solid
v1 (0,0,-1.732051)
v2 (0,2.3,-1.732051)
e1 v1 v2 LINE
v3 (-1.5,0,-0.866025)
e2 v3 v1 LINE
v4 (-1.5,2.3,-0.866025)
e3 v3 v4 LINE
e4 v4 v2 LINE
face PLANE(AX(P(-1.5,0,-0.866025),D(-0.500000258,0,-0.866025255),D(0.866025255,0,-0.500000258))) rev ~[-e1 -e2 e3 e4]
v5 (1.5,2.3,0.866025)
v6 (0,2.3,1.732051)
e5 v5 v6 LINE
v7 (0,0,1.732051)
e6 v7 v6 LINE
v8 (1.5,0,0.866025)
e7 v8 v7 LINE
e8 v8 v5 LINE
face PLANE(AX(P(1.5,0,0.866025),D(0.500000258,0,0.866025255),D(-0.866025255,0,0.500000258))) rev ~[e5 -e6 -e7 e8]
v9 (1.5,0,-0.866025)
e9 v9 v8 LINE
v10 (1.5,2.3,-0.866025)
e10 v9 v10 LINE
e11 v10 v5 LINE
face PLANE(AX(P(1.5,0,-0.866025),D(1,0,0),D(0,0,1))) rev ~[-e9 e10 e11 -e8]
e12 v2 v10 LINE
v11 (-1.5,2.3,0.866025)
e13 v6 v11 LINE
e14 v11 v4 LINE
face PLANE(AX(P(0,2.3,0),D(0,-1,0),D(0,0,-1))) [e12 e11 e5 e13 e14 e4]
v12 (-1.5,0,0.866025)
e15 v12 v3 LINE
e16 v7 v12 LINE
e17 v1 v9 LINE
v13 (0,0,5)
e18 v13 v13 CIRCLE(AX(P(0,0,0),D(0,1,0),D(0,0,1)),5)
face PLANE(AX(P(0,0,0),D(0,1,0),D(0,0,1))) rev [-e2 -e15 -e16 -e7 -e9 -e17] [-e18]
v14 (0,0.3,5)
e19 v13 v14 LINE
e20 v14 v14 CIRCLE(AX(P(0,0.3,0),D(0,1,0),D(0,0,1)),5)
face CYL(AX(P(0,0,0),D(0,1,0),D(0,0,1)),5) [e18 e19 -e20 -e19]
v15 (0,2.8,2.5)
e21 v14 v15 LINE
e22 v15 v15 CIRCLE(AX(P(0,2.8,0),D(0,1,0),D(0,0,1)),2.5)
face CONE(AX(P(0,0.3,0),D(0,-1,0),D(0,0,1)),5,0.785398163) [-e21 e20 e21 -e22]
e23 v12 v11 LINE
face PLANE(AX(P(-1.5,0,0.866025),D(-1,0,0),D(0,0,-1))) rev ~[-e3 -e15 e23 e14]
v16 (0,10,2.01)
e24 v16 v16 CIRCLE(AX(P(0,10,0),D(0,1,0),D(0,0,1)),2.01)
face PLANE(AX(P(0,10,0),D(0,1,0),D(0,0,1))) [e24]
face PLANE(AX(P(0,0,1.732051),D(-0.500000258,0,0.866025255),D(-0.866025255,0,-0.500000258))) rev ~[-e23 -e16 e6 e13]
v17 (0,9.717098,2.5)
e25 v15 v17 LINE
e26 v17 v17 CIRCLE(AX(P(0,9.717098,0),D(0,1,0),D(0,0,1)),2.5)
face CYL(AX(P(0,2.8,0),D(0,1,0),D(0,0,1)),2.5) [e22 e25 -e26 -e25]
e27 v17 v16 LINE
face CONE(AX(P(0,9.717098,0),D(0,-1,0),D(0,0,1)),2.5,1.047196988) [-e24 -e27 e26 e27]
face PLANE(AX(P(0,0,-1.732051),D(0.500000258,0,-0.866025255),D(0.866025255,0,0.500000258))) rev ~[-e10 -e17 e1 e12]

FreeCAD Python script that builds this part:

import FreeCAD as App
import Part
import Sketcher
from FreeCAD import Vector
Q = App.Units.Quantity

doc = App.newDocument("Part")
params = doc.addObject("Spreadsheet::Sheet", "Params")
for row, (alias, value) in enumerate([
    ("sketch1_width", "10 mm"),
    ("sketch1_height", "5 mm"),
    ("sketch1_width2", "0.3 mm"),
    ("sketch1_height2", "2.01 mm"),
    ("revolution_angle", "360 deg"),
    ("pocket1_length", "2.3 mm"),
], start=1):
    params.set(f"A{row}", alias)
    params.set(f"B{row}", "=" + value)
    params.setAlias(f"B{row}", alias)

body = doc.addObject("PartDesign::Body", "Body")

# Sketch on YZ plane
sketch1 = doc.addObject("Sketcher::SketchObject", "Sketch")
body.addObject(sketch1)
sketch1.AttachmentSupport = (doc.YZ_Plane, [""])
sketch1.MapMode = "FlatFace"
sketch1.addGeometry([
    Part.LineSegment(Vector(0, 5, 0), Vector(0, 0, 0)),  # 0
    Part.LineSegment(Vector(0, 0, 0), Vector(10, 0, 0)),  # 1
    Part.LineSegment(Vector(10, 0, 0), Vector(10, 2.01, 0)),  # 2
    Part.LineSegment(Vector(10, 2.01, 0), Vector(9.717098, 2.5, 0)),  # 3
    Part.LineSegment(Vector(9.717098, 2.5, 0), Vector(2.8, 2.5, 0)),  # 4
    Part.LineSegment(Vector(2.8, 2.5, 0), Vector(0.3, 5, 0)),  # 5
    Part.LineSegment(Vector(0.3, 5, 0), Vector(0, 5, 0)),  # 6
], False)
sketch1.addConstraint([
    Sketcher.Constraint("Coincident", 0, 2, 1, 1),
    Sketcher.Constraint("Coincident", 1, 2, 2, 1),
    Sketcher.Constraint("Coincident", 2, 2, 3, 1),
    Sketcher.Constraint("Coincident", 3, 2, 4, 1),
    Sketcher.Constraint("Coincident", 4, 2, 5, 1),
    Sketcher.Constraint("Coincident", 5, 2, 6, 1),
    Sketcher.Constraint("Coincident", 6, 2, 0, 1),
    Sketcher.Constraint("Vertical", 0),
    Sketcher.Constraint("Horizontal", 1),
    Sketcher.Constraint("Vertical", 2),
    Sketcher.Constraint("Horizontal", 4),
    Sketcher.Constraint("Horizontal", 6),
    Sketcher.Constraint("Coincident", 0, 2, -1, 1),
    Sketcher.Constraint("DistanceX", 1, 1, 1, 2, 10.0),
    Sketcher.Constraint("DistanceY", 0, 2, 0, 1, 5.0),
    Sketcher.Constraint("Angle", 5, Q("135 deg")),
    Sketcher.Constraint("DistanceX", 6, 2, 6, 1, 0.3),
    Sketcher.Constraint("DistanceY", 2, 1, 2, 2, 2.01),
    Sketcher.Constraint("DistanceY", -1, 1, 3, 2, 2.5),
    Sketcher.Constraint("DistanceX", 4, 2, 4, 1, 6.917098),
])
sketch1.setExpression("Constraints[13]", "Params.sketch1_width")
sketch1.setExpression("Constraints[14]", "Params.sketch1_height")
sketch1.setExpression("Constraints[16]", "Params.sketch1_width2")
sketch1.setExpression("Constraints[17]", "Params.sketch1_height2")
revolution = doc.addObject("PartDesign::Revolution", "Revolution")
body.addObject(revolution)
revolution.Profile = sketch1
revolution.ReferenceAxis = (sketch1, ["H_Axis"])
revolution.setExpression("Angle", "Params.revolution_angle")

# Sketch on XZ plane
sketch2 = doc.addObject("Sketcher::SketchObject", "Sketch001")
body.addObject(sketch2)
sketch2.AttachmentSupport = (doc.XZ_Plane, [""])
sketch2.MapMode = "FlatFace"
sketch2.addGeometry([
    Part.LineSegment(Vector(1.5, -0.866025, 0), Vector(1.5, 0.866025, 0)),  # 0
    Part.LineSegment(Vector(1.5, 0.866025, 0), Vector(0, 1.732051, 0)),  # 1
    Part.LineSegment(Vector(0, 1.732051, 0), Vector(-1.5, 0.866025, 0)),  # 2
    Part.LineSegment(Vector(-1.5, 0.866025, 0), Vector(-1.5, -0.866025, 0)),  # 3
    Part.LineSegment(Vector(-1.5, -0.866025, 0), Vector(0, -1.732051, 0)),  # 4
    Part.LineSegment(Vector(0, -1.732051, 0), Vector(1.5, -0.866025, 0)),  # 5
], False)
sketch2.addConstraint([
    Sketcher.Constraint("Coincident", 0, 2, 1, 1),
    Sketcher.Constraint("Coincident", 1, 2, 2, 1),
    Sketcher.Constraint("Coincident", 2, 2, 3, 1),
    Sketcher.Constraint("Coincident", 3, 2, 4, 1),
    Sketcher.Constraint("Coincident", 4, 2, 5, 1),
    Sketcher.Constraint("Coincident", 5, 2, 0, 1),
    Sketcher.Constraint("Vertical", 0),
    Sketcher.Constraint("Vertical", 3),
    Sketcher.Constraint("Symmetric", 0, 2, 3, 2, -1, 1),
    Sketcher.Constraint("Symmetric", 1, 2, 4, 2, -1, 1),
    Sketcher.Constraint("PointOnObject", 1, 2, -2),
    Sketcher.Constraint("Parallel", 2, 5),
    Sketcher.Constraint("Horizontal", 0, 2, 2, 2),
    Sketcher.Constraint("Angle", 1, Q("149.999983 deg")),
    Sketcher.Constraint("DistanceX", 2, 2, 0, 2, 3.0),
    Sketcher.Constraint("DistanceY", 0, 1, 0, 2, 1.73205),
])
pocket1 = doc.addObject("PartDesign::Pocket", "Pocket")
body.addObject(pocket1)
pocket1.Profile = sketch2
pocket1.setExpression("Length", "Params.pocket1_length")

doc.recompute()
